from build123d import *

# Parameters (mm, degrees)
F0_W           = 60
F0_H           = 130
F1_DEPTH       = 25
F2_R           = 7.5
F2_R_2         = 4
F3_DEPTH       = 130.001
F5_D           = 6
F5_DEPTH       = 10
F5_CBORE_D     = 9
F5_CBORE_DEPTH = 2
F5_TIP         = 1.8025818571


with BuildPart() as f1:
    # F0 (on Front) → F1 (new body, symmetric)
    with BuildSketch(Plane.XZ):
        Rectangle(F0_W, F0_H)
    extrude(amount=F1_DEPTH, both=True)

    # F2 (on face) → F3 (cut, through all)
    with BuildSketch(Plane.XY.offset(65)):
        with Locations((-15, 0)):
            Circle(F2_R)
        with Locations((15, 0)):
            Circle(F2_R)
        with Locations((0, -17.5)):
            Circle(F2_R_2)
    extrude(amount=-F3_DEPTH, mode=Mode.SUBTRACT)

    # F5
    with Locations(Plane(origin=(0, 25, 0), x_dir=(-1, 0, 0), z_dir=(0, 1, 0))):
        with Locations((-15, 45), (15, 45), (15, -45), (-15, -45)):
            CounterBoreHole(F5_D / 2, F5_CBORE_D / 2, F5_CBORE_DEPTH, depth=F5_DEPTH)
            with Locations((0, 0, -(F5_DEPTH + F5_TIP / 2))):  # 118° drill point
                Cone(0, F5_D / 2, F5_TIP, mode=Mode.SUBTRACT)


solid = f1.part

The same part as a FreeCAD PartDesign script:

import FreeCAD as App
import Part
import Sketcher
from FreeCAD import Vector

doc = App.newDocument("Part")
body = doc.addObject("PartDesign::Body", "Body")

sketch1 = body.newObject("Sketcher::SketchObject", "Sketch")
sketch1.AttachmentSupport = (doc.getObject("XZ_Plane"), [""])
sketch1.MapMode = "FlatFace"
sketch1.addGeometry(Part.LineSegment(Vector(-30, 65, 0), Vector(-30, -65, 0)), False)
sketch1.addGeometry(Part.LineSegment(Vector(-30, -65, 0), Vector(30, -65, 0)), False)
sketch1.addGeometry(Part.LineSegment(Vector(30, -65, 0), Vector(30, 65, 0)), False)
sketch1.addGeometry(Part.LineSegment(Vector(30, 65, 0), Vector(-30, 65, 0)), False)
sketch1.addConstraint(Sketcher.Constraint("Coincident", 0, 2, 1, 1))
sketch1.addConstraint(Sketcher.Constraint("Coincident", 1, 2, 2, 1))
sketch1.addConstraint(Sketcher.Constraint("Coincident", 2, 2, 3, 1))
sketch1.addConstraint(Sketcher.Constraint("Coincident", 3, 2, 0, 1))
sketch1.addConstraint(Sketcher.Constraint("Vertical", 0))
sketch1.addConstraint(Sketcher.Constraint("Horizontal", 1))
sketch1.addConstraint(Sketcher.Constraint("Vertical", 2))
sketch1.addConstraint(Sketcher.Constraint("Horizontal", 3))
sketch1.addConstraint(Sketcher.Constraint("Symmetric", 0, 2, 2, 2, -1, 1))
sketch1.addConstraint(Sketcher.Constraint("DistanceX", 1, 1, 1, 2, 60.0))
sketch1.addConstraint(Sketcher.Constraint("DistanceY", 0, 2, 0, 1, 130.0))
pad1 = body.newObject("PartDesign::Pad", "Pad")
pad1.Profile = sketch1
pad1.Length = 50
pad1.Midplane = True

sketch2 = body.newObject("Sketcher::SketchObject", "Sketch001")
sketch2.AttachmentSupport = (doc.getObject("XY_Plane"), [""])
sketch2.MapMode = "FlatFace"
sketch2.AttachmentOffset = App.Placement(Vector(0, 0, 65), App.Rotation())
sketch2.addGeometry(Part.Circle(Vector(-15, 0, 0), Vector(0, 0, 1), 7.5), False)
sketch2.addGeometry(Part.Circle(Vector(15, 0, 0), Vector(0, 0, 1), 7.5), False)
sketch2.addGeometry(Part.Circle(Vector(0, -17.5, 0), Vector(0, 0, 1), 4), False)
sketch2.addConstraint(Sketcher.Constraint("Equal", 0, 1))
sketch2.addConstraint(Sketcher.Constraint("Symmetric", 0, 3, 1, 3, -1, 1))
sketch2.addConstraint(Sketcher.Constraint("PointOnObject", 0, 3, -1))
sketch2.addConstraint(Sketcher.Constraint("PointOnObject", 2, 3, -2))
sketch2.addConstraint(Sketcher.Constraint("Diameter", 0, 15.0))
sketch2.addConstraint(Sketcher.Constraint("Diameter", 2, 8.0))
sketch2.addConstraint(Sketcher.Constraint("DistanceX", 0, 3, -1, 1, 15.0))
sketch2.addConstraint(Sketcher.Constraint("DistanceY", 2, 3, -1, 1, 17.5))
pocket1 = body.newObject("PartDesign::Pocket", "Pocket")
pocket1.Profile = sketch2
pocket1.Type = "ThroughAll"

sketch3 = body.newObject("Sketcher::SketchObject", "Sketch002")
sketch3.AttachmentSupport = (doc.getObject("XZ_Plane"), [""])
sketch3.MapMode = "FlatFace"
sketch3.AttachmentOffset = App.Placement(Vector(0, 0, -25), App.Rotation())
sketch3.addGeometry(Part.Circle(Vector(15, 45, 0), Vector(0, 0, 1), 3), False)
sketch3.addGeometry(Part.Circle(Vector(-15, 45, 0), Vector(0, 0, 1), 3), False)
sketch3.addGeometry(Part.Circle(Vector(-15, -45, 0), Vector(0, 0, 1), 3), False)
sketch3.addGeometry(Part.Circle(Vector(15, -45, 0), Vector(0, 0, 1), 3), False)
sketch3.addConstraint(Sketcher.Constraint("Equal", 0, 1))
sketch3.addConstraint(Sketcher.Constraint("Equal", 1, 2))
sketch3.addConstraint(Sketcher.Constraint("Equal", 2, 3))
sketch3.addConstraint(Sketcher.Constraint("Symmetric", 0, 3, 2, 3, -1, 1))
sketch3.addConstraint(Sketcher.Constraint("Symmetric", 1, 3, 3, 3, -1, 1))
sketch3.addConstraint(Sketcher.Constraint("Symmetric", 0, 3, 1, 3, -2))
sketch3.addConstraint(Sketcher.Constraint("Diameter", 0, 6.0))
sketch3.addConstraint(Sketcher.Constraint("DistanceX", -1, 1, 0, 3, 15.0))
sketch3.addConstraint(Sketcher.Constraint("DistanceY", -1, 1, 0, 3, 45.0))
doc.recompute()
hole = body.newObject("PartDesign::Hole", "Hole")
hole.Profile = sketch3
hole.ThreadType = "None"
hole.Diameter = 6
hole.DepthType = "Dimension"
hole.Depth = 10
hole.DrillPoint = "Angled"
hole.DrillPointAngle = 118
hole.HoleCutType = "Counterbore"
hole.HoleCutDiameter = 9
hole.HoleCutDepth = 2
hole.Reversed = True

doc.recompute()
